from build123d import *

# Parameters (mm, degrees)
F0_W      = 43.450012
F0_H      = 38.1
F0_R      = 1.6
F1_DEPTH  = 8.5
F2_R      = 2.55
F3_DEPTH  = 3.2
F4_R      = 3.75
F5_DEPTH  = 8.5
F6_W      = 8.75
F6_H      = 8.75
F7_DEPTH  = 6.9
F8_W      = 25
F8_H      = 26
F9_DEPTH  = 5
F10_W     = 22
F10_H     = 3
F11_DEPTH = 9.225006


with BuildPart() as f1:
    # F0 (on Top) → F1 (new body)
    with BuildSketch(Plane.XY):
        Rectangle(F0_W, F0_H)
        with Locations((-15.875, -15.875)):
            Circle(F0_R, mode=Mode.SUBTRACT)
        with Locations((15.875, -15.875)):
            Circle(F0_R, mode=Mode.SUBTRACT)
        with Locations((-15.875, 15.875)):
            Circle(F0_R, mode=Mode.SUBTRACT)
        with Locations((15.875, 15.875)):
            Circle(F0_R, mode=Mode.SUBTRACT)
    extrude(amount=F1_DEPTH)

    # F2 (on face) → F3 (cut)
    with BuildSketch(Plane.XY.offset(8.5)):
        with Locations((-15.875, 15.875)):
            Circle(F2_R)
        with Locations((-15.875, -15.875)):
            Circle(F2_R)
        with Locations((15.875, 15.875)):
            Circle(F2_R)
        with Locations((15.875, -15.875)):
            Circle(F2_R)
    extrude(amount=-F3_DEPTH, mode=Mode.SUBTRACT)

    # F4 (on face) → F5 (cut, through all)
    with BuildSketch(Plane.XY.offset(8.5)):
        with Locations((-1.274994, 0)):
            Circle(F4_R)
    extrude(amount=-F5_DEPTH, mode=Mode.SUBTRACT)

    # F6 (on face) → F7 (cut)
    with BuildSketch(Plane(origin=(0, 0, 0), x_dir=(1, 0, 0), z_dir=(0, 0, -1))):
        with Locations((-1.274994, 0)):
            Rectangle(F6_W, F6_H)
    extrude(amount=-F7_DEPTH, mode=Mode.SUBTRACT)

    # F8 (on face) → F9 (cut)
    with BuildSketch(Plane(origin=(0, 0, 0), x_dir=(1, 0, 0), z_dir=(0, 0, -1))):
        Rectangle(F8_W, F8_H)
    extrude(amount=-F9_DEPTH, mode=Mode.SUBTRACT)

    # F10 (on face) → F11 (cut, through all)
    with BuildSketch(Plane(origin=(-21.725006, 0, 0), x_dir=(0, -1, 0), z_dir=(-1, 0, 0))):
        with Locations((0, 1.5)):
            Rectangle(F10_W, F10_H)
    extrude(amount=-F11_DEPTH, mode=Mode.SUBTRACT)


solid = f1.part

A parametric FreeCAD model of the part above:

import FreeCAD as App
import Part
import Sketcher
from FreeCAD import Vector


def add_polygon(sketch, points):
    """Adds a closed chain of lines whose ends are joined by coincident constraints."""
    first, n = sketch.GeometryCount, len(points)
    for a, b in zip(points, points[1:] + points[:1]):
        sketch.addGeometry(Part.LineSegment(App.Vector(*a, 0), App.Vector(*b, 0)), False)
    for i in range(n):
        sketch.addConstraint(Sketcher.Constraint("Coincident", first + i, 2, first + (i + 1) % n, 1))

doc = App.newDocument("Part")
body = doc.addObject("PartDesign::Body", "Body")

sketch1 = doc.addObject("Sketcher::SketchObject", "Sketch")
body.addObject(sketch1)
sketch1.AttachmentSupport = (doc.XY_Plane, [""])
sketch1.MapMode = "FlatFace"
add_polygon(sketch1, [(-21.7, 19.1), (-21.7, -19.1), (21.7, -19.1), (21.7, 19.1)])
sketch1.addGeometry(Part.Circle(Vector(-15.9, -15.9, 0), Vector(0, 0, 1), 1.6), False)
sketch1.addGeometry(Part.Circle(Vector(15.9, -15.9, 0), Vector(0, 0, 1), 1.6), False)
sketch1.addGeometry(Part.Circle(Vector(-15.9, 15.9, 0), Vector(0, 0, 1), 1.6), False)
sketch1.addGeometry(Part.Circle(Vector(15.9, 15.9, 0), Vector(0, 0, 1), 1.6), False)
sketch1.addConstraint(Sketcher.Constraint("Vertical", 0))
sketch1.addConstraint(Sketcher.Constraint("Horizontal", 1))
sketch1.addConstraint(Sketcher.Constraint("Vertical", 2))
sketch1.addConstraint(Sketcher.Constraint("Horizontal", 3))
sketch1.addConstraint(Sketcher.Constraint("Equal", 4, 5))
sketch1.addConstraint(Sketcher.Constraint("Equal", 5, 6))
sketch1.addConstraint(Sketcher.Constraint("Equal", 6, 7))
sketch1.addConstraint(Sketcher.Constraint("Symmetric", 5, 3, 6, 3, -1, 1))
sketch1.addConstraint(Sketcher.Constraint("Symmetric", 4, 3, 7, 3, -1, 1))
sketch1.addConstraint(Sketcher.Constraint("Symmetric", 0, 2, 2, 2, -1, 1))
sketch1.addConstraint(Sketcher.Constraint("Symmetric", 4, 3, 5, 3, -2))
sketch1.addConstraint(Sketcher.Constraint("Diameter", 4, 3.2))
sketch1.addConstraint(Sketcher.Constraint("DistanceY", 0, 2, 0, 1, 38.1))
sketch1.addConstraint(Sketcher.Constraint("DistanceX", 4, 3, 5, 3, 31.75))
sketch1.addConstraint(Sketcher.Constraint("DistanceY", 4, 3, 6, 3, 31.75))
sketch1.addConstraint(Sketcher.Constraint("DistanceX", 1, 1, 1, 2, 43.450012))
pad1 = doc.addObject("PartDesign::Pad", "Pad")
body.addObject(pad1)
pad1.Profile = sketch1
pad1.Length = 8.5

sketch2 = doc.addObject("Sketcher::SketchObject", "Sketch001")
body.addObject(sketch2)
sketch2.AttachmentSupport = (doc.XY_Plane, [""])
sketch2.MapMode = "FlatFace"
sketch2.AttachmentOffset = App.Placement(Vector(0, 0, 8.5), App.Rotation())
sketch2.addGeometry(Part.Circle(Vector(-15.9, 15.9, 0), Vector(0, 0, 1), 2.5), False)
sketch2.addGeometry(Part.Circle(Vector(-15.9, -15.9, 0), Vector(0, 0, 1), 2.5), False)
sketch2.addGeometry(Part.Circle(Vector(15.9, 15.9, 0), Vector(0, 0, 1), 2.5), False)
sketch2.addGeometry(Part.Circle(Vector(15.9, -15.9, 0), Vector(0, 0, 1), 2.5), False)
sketch2.addConstraint(Sketcher.Constraint("Equal", 0, 1))
sketch2.addConstraint(Sketcher.Constraint("Equal", 1, 2))
sketch2.addConstraint(Sketcher.Constraint("Equal", 2, 3))
sketch2.addConstraint(Sketcher.Constraint("Symmetric", 1, 3, 2, 3, -1, 1))
sketch2.addConstraint(Sketcher.Constraint("Symmetric", 0, 3, 3, 3, -1, 1))
sketch2.addConstraint(Sketcher.Constraint("Symmetric", 0, 3, 2, 3, -2))
sketch2.addConstraint(Sketcher.Constraint("Diameter", 0, 5.1))
sketch2.addConstraint(Sketcher.Constraint("DistanceY", 1, 3, 0, 3, 31.75))
sketch2.addConstraint(Sketcher.Constraint("DistanceX", 0, 3, 2, 3, 31.75))
pocket1 = doc.addObject("PartDesign::Pocket", "Pocket")
body.addObject(pocket1)
pocket1.Profile = sketch2
pocket1.Length = 3.2

sketch3 = doc.addObject("Sketcher::SketchObject", "Sketch002")
body.addObject(sketch3)
sketch3.AttachmentSupport = (doc.XY_Plane, [""])
sketch3.MapMode = "FlatFace"
sketch3.AttachmentOffset = App.Placement(Vector(0, 0, 8.5), App.Rotation())
sketch3.addGeometry(Part.Circle(Vector(-1.3, 0, 0), Vector(0, 0, 1), 3.8), False)
sketch3.addConstraint(Sketcher.Constraint("PointOnObject", 0, 3, -1))
sketch3.addConstraint(Sketcher.Constraint("Diameter", 0, 7.5))
sketch3.addConstraint(Sketcher.Constraint("DistanceX", 0, 3, -1, 1, 1.274994))
pocket2 = doc.addObject("PartDesign::Pocket", "Pocket001")
body.addObject(pocket2)
pocket2.Profile = sketch3
pocket2.Type = "ThroughAll"

sketch4 = doc.addObject("Sketcher::SketchObject", "Sketch003")
body.addObject(sketch4)
sketch4.AttachmentSupport = (doc.XY_Plane, [""])
sketch4.MapMode = "FlatFace"
add_polygon(sketch4, [(-6, -4), (-6, 4), (3, 4), (3, -4)])
sketch4.addConstraint(Sketcher.Constraint("Vertical", 0))
sketch4.addConstraint(Sketcher.Constraint("Horizontal", 1))
sketch4.addConstraint(Sketcher.Constraint("Vertical", 2))
sketch4.addConstraint(Sketcher.Constraint("Horizontal", 3))
sketch4.addConstraint(Sketcher.Constraint("Equal", 3, 0))
sketch4.addConstraint(Sketcher.Constraint("DistanceX", 1, 1, 1, 2, 8.75))
sketch4.addConstraint(Sketcher.Constraint("DistanceY", -1, 1, 0, 2, 4.375))
sketch4.addConstraint(Sketcher.Constraint("DistanceX", 0, 2, -1, 1, 5.649994))
pocket3 = doc.addObject("PartDesign::Pocket", "Pocket002")
body.addObject(pocket3)
pocket3.Profile = sketch4
pocket3.Length = 6.9
pocket3.Reversed = True

sketch5 = doc.addObject("Sketcher::SketchObject", "Sketch004")
body.addObject(sketch5)
sketch5.AttachmentSupport = (doc.XY_Plane, [""])
sketch5.MapMode = "FlatFace"
add_polygon(sketch5, [(-12, -13), (-12, 13), (12, 13), (12, -13)])
sketch5.addConstraint(Sketcher.Constraint("Vertical", 0))
sketch5.addConstraint(Sketcher.Constraint("Horizontal", 1))
sketch5.addConstraint(Sketcher.Constraint("Vertical", 2))
sketch5.addConstraint(Sketcher.Constraint("Horizontal", 3))
sketch5.addConstraint(Sketcher.Constraint("Symmetric", 0, 2, 2, 2, -1, 1))
sketch5.addConstraint(Sketcher.Constraint("DistanceX", 1, 1, 1, 2, 25.0))
sketch5.addConstraint(Sketcher.Constraint("DistanceY", 0, 1, 0, 2, 26.0))
pocket4 = doc.addObject("PartDesign::Pocket", "Pocket003")
body.addObject(pocket4)
pocket4.Profile = sketch5
pocket4.Length = 5
pocket4.Reversed = True

sketch6 = doc.addObject("Sketcher::SketchObject", "Sketch005")
body.addObject(sketch6)
sketch6.AttachmentSupport = (doc.YZ_Plane, [""])
sketch6.MapMode = "FlatFace"
sketch6.AttachmentOffset = App.Placement(Vector(0, 0, -21.725006), App.Rotation())
add_polygon(sketch6, [(11, 3), (11, 0), (-11, 0), (-11, 3)])
sketch6.addConstraint(Sketcher.Constraint("Vertical", 0))
sketch6.addConstraint(Sketcher.Constraint("Horizontal", 1))
sketch6.addConstraint(Sketcher.Constraint("Vertical", 2))
sketch6.addConstraint(Sketcher.Constraint("Horizontal", 3))
sketch6.addConstraint(Sketcher.Constraint("Symmetric", 0, 2, 1, 2, -1, 1))
sketch6.addConstraint(Sketcher.Constraint("DistanceX", 1, 2, 1, 1, 22.0))
sketch6.addConstraint(Sketcher.Constraint("DistanceY", 0, 2, 0, 1, 3.0))
pocket5 = doc.addObject("PartDesign::Pocket", "Pocket004")
body.addObject(pocket5)
pocket5.Profile = sketch6
pocket5.Length = 9.225006
pocket5.Reversed = True

doc.recompute()
